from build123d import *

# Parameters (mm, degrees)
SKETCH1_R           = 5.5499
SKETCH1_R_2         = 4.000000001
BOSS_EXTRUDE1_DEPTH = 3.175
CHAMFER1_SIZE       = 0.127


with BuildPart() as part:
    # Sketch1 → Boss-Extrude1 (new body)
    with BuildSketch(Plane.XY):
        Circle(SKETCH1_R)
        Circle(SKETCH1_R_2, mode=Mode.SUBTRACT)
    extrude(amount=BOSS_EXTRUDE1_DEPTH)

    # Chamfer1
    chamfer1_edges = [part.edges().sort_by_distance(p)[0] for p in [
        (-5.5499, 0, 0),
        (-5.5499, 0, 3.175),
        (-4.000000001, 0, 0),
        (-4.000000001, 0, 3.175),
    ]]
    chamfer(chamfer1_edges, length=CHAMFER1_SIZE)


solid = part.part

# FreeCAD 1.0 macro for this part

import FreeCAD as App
import Part
import Sketcher
Q = App.Units.Quantity


def edges_at(feature, points):
    """Names of the edges that pass closest to the given points."""
    edges = feature.Shape.Edges
    near = lambda p: min(range(len(edges)), key=lambda i: edges[i].distToShape(Part.Vertex(*p))[0])
    return sorted({f"Edge{near(p) + 1}" for p in points})

doc = App.newDocument("Part")
params = doc.addObject("Spreadsheet::Sheet", "Params")
for row, (alias, value) in enumerate([
    ("sketch1_diameter", "0.437 in"),
    ("pad1_length", "0.125 in"),
    ("chamfer_size", "0.005 in"),
], start=1):
    params.set(f"A{row}", alias)
    params.set(f"B{row}", "=" + value)
    params.setAlias(f"B{row}", alias)

body = doc.addObject("PartDesign::Body", "Body")

# Sketch on XY plane
sketch1 = body.newObject("Sketcher::SketchObject", "Sketch")
sketch1.AttachmentSupport = (doc.getObject("XY_Plane"), [""])
sketch1.MapMode = "FlatFace"
sketch1.addGeometry([
    Part.Circle(App.Vector(0, 0, 0), App.Vector(0, 0, 1), 5.5),
    Part.Circle(App.Vector(0, 0, 0), App.Vector(0, 0, 1), 4),
], False)
sketch1.addConstraint([
    Sketcher.Constraint("Coincident", 0, 3, -1, 1),
    Sketcher.Constraint("Coincident", 1, 3, -1, 1),
    Sketcher.Constraint("Diameter", 0, Q("0.437 in")),
    Sketcher.Constraint("Diameter", 1, 8.0),
])
sketch1.setExpression("Constraints[2]", "Params.sketch1_diameter")
pad1 = body.newObject("PartDesign::Pad", "Pad")
pad1.Profile = sketch1
pad1.setExpression("Length", "Params.pad1_length")
doc.recompute()

chamfer = body.newObject("PartDesign::Chamfer", "Chamfer")
chamfer.Base = (pad1, edges_at(pad1, [
    (-5.55, 0, 0),
    (-5.55, 0, 3.175),
    (-4, 0, 0),
    (-4, 0, 3.175),
]))
chamfer.setExpression("Size", "Params.chamfer_size")

doc.recompute()
